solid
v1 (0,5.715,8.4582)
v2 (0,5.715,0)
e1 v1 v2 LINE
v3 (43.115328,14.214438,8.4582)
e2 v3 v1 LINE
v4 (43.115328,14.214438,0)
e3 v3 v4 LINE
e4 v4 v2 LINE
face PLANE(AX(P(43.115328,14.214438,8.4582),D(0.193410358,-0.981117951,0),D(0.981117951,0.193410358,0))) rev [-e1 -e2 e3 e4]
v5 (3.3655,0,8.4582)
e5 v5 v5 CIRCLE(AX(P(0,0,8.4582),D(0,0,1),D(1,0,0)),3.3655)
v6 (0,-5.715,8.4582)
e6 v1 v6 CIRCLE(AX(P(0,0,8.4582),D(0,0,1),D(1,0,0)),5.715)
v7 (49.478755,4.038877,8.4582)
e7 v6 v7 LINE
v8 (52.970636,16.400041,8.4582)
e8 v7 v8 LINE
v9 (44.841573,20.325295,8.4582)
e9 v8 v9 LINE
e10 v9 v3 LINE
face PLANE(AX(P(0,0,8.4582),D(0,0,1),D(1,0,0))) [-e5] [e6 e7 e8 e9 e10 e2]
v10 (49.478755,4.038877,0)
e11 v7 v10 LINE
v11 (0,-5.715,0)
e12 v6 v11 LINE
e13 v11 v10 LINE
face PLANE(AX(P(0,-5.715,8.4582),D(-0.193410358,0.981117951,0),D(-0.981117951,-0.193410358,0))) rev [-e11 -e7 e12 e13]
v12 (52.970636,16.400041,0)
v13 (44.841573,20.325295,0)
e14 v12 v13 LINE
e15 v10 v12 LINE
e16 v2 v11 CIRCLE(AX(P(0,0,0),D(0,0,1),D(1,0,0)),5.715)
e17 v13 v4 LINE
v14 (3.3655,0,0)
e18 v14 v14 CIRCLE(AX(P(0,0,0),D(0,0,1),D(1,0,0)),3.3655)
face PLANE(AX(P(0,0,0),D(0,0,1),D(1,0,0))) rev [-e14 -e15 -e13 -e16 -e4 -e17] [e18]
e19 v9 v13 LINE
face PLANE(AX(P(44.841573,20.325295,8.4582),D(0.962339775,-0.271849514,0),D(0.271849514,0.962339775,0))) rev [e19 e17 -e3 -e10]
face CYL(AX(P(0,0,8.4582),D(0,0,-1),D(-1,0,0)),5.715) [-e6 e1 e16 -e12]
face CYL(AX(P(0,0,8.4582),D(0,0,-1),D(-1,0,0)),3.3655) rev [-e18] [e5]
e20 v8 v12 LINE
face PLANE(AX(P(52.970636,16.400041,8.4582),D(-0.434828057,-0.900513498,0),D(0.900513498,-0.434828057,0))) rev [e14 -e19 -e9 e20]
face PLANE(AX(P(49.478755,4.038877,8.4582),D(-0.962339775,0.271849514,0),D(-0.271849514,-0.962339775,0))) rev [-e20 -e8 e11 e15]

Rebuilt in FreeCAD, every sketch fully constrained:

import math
import FreeCAD as App
import Part
import Sketcher

V = App.Vector
Q = App.Units.Quantity

doc = App.newDocument("Part")
body = doc.addObject("PartDesign::Body", "Body")

sketch1 = body.newObject("Sketcher::SketchObject", "Sketch")
sketch1.AttachmentSupport = (doc.getObject("XY_Plane"), [""])
sketch1.MapMode = "FlatFace"
sketch1.addGeometry([
    Part.LineSegment(V(0, -5.7, 0), V(49.5, 4, 0)),
    Part.LineSegment(V(49.5, 4, 0), V(53, 16.4, 0)),
    Part.LineSegment(V(53, 16.4, 0), V(44.8, 20.3, 0)),
    Part.LineSegment(V(44.8, 20.3, 0), V(43.1, 14.2, 0)),
    Part.LineSegment(V(43.1, 14.2, 0), V(0, 5.7, 0)),
    Part.ArcOfCircle(Part.Circle(V(0, 0, 0), V(0, 0, 1), 5.7), math.radians(90), math.radians(270)),
    Part.Circle(V(0, 0, 0), V(0, 0, 1), 3.4),
], False)
sketch1.addConstraint([
    Sketcher.Constraint("Coincident", 0, 2, 1, 1),
    Sketcher.Constraint("Coincident", 1, 2, 2, 1),
    Sketcher.Constraint("Coincident", 2, 2, 3, 1),
    Sketcher.Constraint("Coincident", 3, 2, 4, 1),
    Sketcher.Constraint("Coincident", 4, 2, 5, 1),
    Sketcher.Constraint("Coincident", 5, 2, 0, 1),
    Sketcher.Constraint("Coincident", 5, 3, -1, 1),
    Sketcher.Constraint("Coincident", 6, 3, -1, 1),
    Sketcher.Constraint("PointOnObject", 4, 2, -2),
    Sketcher.Constraint("PointOnObject", 5, 2, -2),
    Sketcher.Constraint("Parallel", 1, 3),
    Sketcher.Constraint("Parallel", 0, 4),
    Sketcher.Constraint("Diameter", 6, Q("0.265 in")),
    Sketcher.Constraint("Radius", 5, Q("0.225 in")),
    Sketcher.Constraint("Distance", 3, Q("0.25 in")),
    Sketcher.Constraint("Distance", 4, Q("43.945102 mm")),
    Sketcher.Constraint("DistanceY", -1, 1, 1, 2, Q("16.400041 mm")),
    Sketcher.Constraint("DistanceX", -1, 1, 3, 2, Q("43.115328 mm")),
    Sketcher.Constraint("DistanceX", 0, 2, 1, 2, Q("3.491881 mm")),
    Sketcher.Constraint("DistanceY", 0, 2, 2, 2, Q("16.286419 mm")),
])
pad1 = body.newObject("PartDesign::Pad", "Pad")
pad1.Profile = sketch1
pad1.Length = Q("0.333 in")

doc.recompute()
